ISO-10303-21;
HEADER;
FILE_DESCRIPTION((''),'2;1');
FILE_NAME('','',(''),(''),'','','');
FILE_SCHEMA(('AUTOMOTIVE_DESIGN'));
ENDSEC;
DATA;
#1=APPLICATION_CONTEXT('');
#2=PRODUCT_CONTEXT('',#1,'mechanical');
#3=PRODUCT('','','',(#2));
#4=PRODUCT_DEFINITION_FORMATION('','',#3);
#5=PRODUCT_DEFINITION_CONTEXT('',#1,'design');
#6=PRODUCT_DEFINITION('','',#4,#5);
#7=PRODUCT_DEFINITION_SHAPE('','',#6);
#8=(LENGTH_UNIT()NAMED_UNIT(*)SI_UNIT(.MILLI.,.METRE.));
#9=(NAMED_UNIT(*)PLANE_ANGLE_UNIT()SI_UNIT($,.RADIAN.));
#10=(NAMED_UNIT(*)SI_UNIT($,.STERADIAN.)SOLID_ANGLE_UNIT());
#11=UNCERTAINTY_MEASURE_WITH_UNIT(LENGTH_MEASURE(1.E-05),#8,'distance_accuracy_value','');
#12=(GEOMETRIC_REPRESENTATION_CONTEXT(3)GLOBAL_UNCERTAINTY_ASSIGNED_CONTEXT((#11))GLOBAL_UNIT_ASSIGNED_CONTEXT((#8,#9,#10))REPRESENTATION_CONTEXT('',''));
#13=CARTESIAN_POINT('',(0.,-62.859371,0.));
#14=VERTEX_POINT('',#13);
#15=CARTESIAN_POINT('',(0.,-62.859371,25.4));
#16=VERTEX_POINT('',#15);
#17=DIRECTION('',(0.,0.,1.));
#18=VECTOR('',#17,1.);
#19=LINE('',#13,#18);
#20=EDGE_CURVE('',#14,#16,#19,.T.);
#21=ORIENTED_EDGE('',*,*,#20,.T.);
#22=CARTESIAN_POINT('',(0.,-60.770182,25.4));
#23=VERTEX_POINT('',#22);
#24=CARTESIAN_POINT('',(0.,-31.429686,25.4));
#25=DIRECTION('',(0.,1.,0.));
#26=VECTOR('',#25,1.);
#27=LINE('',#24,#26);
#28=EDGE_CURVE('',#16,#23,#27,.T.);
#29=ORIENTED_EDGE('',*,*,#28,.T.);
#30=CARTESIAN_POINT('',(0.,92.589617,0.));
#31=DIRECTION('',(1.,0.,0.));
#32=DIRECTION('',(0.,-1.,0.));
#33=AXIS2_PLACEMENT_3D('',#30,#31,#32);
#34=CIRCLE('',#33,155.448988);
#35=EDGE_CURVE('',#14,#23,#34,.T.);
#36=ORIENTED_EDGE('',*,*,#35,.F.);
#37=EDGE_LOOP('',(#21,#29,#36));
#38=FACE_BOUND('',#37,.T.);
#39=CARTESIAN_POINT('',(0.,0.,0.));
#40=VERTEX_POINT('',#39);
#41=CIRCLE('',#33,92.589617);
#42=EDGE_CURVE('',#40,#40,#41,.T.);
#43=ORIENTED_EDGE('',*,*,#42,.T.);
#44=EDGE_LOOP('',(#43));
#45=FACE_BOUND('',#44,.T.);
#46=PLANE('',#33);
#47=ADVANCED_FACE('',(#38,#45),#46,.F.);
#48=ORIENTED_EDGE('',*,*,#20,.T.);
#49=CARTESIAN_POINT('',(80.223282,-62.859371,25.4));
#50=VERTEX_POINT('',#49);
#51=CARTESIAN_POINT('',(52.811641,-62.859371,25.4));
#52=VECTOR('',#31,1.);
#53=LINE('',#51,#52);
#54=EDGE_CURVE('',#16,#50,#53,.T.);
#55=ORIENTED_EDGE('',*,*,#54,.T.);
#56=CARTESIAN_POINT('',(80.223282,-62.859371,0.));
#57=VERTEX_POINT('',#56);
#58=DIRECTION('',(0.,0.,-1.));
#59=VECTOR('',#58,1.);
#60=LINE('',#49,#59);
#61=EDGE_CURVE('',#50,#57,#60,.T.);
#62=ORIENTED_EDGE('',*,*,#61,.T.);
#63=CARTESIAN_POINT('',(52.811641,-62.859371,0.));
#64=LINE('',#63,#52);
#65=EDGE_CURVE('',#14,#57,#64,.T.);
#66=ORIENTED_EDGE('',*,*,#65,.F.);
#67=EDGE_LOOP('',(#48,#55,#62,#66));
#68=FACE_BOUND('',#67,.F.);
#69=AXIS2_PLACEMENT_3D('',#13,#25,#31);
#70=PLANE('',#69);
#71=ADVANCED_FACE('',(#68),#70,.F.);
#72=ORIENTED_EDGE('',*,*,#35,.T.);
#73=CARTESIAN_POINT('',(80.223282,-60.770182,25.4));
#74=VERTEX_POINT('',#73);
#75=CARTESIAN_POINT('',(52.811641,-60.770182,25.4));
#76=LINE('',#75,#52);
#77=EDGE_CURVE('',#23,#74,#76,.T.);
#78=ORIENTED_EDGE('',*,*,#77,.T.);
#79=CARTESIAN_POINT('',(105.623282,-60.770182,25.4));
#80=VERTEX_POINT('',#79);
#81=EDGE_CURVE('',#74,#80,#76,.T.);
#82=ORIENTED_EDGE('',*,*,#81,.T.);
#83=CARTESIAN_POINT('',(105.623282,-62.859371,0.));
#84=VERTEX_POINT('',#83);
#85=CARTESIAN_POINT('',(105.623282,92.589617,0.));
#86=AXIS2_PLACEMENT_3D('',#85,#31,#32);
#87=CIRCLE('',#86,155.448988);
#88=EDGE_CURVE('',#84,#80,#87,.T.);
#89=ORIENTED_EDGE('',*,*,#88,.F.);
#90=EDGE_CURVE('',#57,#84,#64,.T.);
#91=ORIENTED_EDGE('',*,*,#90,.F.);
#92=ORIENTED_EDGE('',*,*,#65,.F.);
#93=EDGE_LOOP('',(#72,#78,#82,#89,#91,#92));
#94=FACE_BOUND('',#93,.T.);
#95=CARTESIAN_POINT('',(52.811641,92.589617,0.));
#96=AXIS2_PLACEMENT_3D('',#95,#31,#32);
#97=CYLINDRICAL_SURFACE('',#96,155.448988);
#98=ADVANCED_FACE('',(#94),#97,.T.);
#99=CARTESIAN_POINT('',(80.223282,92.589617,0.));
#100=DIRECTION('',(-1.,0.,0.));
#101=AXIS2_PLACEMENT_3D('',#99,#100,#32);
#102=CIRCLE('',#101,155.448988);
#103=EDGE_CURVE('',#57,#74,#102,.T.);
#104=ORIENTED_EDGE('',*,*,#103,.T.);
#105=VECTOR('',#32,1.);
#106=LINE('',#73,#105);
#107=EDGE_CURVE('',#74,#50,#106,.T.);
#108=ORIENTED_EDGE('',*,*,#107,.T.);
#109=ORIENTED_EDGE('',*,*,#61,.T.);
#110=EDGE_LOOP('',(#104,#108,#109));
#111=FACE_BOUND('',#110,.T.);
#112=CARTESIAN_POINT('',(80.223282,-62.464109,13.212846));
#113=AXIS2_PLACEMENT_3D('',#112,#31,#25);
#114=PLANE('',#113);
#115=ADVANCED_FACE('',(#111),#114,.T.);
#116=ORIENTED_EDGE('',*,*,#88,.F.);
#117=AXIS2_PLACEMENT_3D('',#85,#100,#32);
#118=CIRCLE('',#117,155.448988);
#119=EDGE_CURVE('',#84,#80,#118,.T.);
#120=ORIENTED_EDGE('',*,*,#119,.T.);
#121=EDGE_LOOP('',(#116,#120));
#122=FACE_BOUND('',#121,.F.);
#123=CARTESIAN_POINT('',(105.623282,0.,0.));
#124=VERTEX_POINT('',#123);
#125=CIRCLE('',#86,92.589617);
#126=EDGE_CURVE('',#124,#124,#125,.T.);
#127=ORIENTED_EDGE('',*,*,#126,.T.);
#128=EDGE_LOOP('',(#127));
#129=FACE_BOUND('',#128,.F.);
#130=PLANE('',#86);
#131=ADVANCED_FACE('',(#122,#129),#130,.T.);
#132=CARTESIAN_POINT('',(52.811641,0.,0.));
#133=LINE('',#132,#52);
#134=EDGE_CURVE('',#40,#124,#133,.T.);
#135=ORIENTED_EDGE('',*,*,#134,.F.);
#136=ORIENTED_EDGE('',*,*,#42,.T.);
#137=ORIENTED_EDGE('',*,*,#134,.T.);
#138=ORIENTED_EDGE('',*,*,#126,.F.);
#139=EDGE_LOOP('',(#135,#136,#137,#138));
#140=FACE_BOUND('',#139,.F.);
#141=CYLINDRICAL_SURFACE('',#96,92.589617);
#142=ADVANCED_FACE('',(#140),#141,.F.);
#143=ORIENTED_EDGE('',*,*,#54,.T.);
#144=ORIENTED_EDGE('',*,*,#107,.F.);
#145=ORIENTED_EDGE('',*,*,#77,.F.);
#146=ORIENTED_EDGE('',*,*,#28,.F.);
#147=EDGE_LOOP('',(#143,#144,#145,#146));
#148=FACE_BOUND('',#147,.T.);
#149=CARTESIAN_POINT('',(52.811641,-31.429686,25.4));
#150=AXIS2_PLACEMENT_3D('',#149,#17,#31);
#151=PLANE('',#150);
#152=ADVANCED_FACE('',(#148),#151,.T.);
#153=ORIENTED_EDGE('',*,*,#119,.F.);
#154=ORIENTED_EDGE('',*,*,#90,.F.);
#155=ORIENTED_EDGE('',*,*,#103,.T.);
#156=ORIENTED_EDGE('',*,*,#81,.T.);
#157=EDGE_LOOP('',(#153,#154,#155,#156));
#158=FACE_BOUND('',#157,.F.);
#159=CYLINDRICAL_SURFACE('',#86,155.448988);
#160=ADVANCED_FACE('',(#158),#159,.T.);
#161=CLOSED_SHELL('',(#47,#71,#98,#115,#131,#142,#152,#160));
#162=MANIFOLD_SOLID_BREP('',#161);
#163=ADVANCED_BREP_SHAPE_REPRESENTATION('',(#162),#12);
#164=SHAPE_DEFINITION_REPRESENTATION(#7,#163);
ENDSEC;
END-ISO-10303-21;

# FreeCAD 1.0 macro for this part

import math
import FreeCAD as App
import Part
import Sketcher
Q = App.Units.Quantity

doc = App.newDocument("Part")
body = doc.addObject("PartDesign::Body", "Body")

sketch1 = doc.addObject("Sketcher::SketchObject", "Sketch")
body.addObject(sketch1)
sketch1.AttachmentSupport = (doc.XY_Plane, [""])
sketch1.MapMode = "FlatFace"
sketch1.addGeometry([
    Part.LineSegment(App.Vector(0, 0, 0), App.Vector(0, -63, 0)),
    Part.LineSegment(App.Vector(0, -63, 0), App.Vector(106, -63, 0)),
    Part.LineSegment(App.Vector(106, -63, 0), App.Vector(106, 0, 0)),
    Part.LineSegment(App.Vector(106, 0, 0), App.Vector(0, 0, 0)),
], False)
sketch1.addConstraint([
    Sketcher.Constraint("Coincident", 0, 2, 1, 1),
    Sketcher.Constraint("Coincident", 1, 2, 2, 1),
    Sketcher.Constraint("Coincident", 2, 2, 3, 1),
    Sketcher.Constraint("Coincident", 3, 2, 0, 1),
    Sketcher.Constraint("Vertical", 0),
    Sketcher.Constraint("Horizontal", 1),
    Sketcher.Constraint("Vertical", 2),
    Sketcher.Constraint("Horizontal", 3),
    Sketcher.Constraint("Coincident", 3, 2, -1, 1),
    Sketcher.Constraint("DistanceY", 0, 2, 0, 1, Q("62.859371 mm")),
    Sketcher.Constraint("DistanceX", 1, 1, 1, 2, Q("105.623282 mm")),
])
pad1 = doc.addObject("PartDesign::Pad", "Pad")
body.addObject(pad1)
pad1.Profile = sketch1
pad1.Length = Q("1 in")

sketch2 = doc.addObject("Sketcher::SketchObject", "Sketch001")
body.addObject(sketch2)
sketch2.AttachmentSupport = (doc.XY_Plane, [""])
sketch2.MapMode = "FlatFace"
sketch2.addGeometry([
    Part.LineSegment(App.Vector(0, -63, 0), App.Vector(0, 0, 0)),
    Part.LineSegment(App.Vector(0, 0, 0), App.Vector(106, 0, 0)),
    Part.LineSegment(App.Vector(106, 0, 0), App.Vector(106, -63, 0)),
    Part.LineSegment(App.Vector(106, -63, 0), App.Vector(0, -63, 0)),
], False)
sketch2.addGeometry(Part.LineSegment(App.Vector(0, 93, 0), App.Vector(106, 93, 0)), True)
sketch2.addConstraint([
    Sketcher.Constraint("Coincident", 0, 2, 1, 1),
    Sketcher.Constraint("Coincident", 1, 2, 2, 1),
    Sketcher.Constraint("Coincident", 2, 2, 3, 1),
    Sketcher.Constraint("Coincident", 3, 2, 0, 1),
    Sketcher.Constraint("Vertical", 0),
    Sketcher.Constraint("Horizontal", 1),
    Sketcher.Constraint("Vertical", 2),
    Sketcher.Constraint("Horizontal", 3),
    Sketcher.Constraint("Horizontal", 4),
    Sketcher.Constraint("Coincident", 0, 2, -1, 1),
    Sketcher.Constraint("PointOnObject", 4, 1, -2),
    Sketcher.Constraint("Vertical", 2, 2, 4, 2),
    Sketcher.Constraint("DistanceY", 0, 1, 0, 2, Q("62.859371 mm")),
    Sketcher.Constraint("DistanceX", 1, 1, 1, 2, Q("105.623282 mm")),
    Sketcher.Constraint("DistanceY", 3, 2, 4, 1, Q("155.448988 mm")),
])
revolution = doc.addObject("PartDesign::Revolution", "Revolution")
body.addObject(revolution)
revolution.Profile = sketch2
revolution.ReferenceAxis = (sketch2, ["Axis0"])
revolution.Angle = 360

sketch3 = doc.addObject("Sketcher::SketchObject", "Sketch002")
body.addObject(sketch3)
sketch3.AttachmentSupport = (doc.YZ_Plane, [""])
sketch3.MapMode = "FlatFace"
sketch3.AttachmentOffset = App.Placement(App.Vector(0, 0, 105.623282), App.Rotation())
sketch3.addGeometry([
    Part.ArcOfCircle(Part.Circle(App.Vector(92.6, 0, 0), App.Vector(0, 0, 1), 155.4), math.radians(170.6), math.radians(180)),
    Part.LineSegment(App.Vector(-60.8, 25.4, 0), App.Vector(-62.9, 25.4, 0)),
    Part.LineSegment(App.Vector(-62.9, 25.4, 0), App.Vector(-62.9, 0, 0)),
], False)
sketch3.addConstraint([
    Sketcher.Constraint("Coincident", 0, 1, 1, 1),
    Sketcher.Constraint("Coincident", 1, 2, 2, 1),
    Sketcher.Constraint("Tangent", 2, 2, 0, 2),
    Sketcher.Constraint("Horizontal", 1),
    Sketcher.Constraint("Vertical", 2),
    Sketcher.Constraint("PointOnObject", 0, 3, -1),
    Sketcher.Constraint("DistanceY", 2, 2, 2, 1, Q("1 in")),
    Sketcher.Constraint("Radius", 0, Q("155.448988 mm")),
    Sketcher.Constraint("DistanceX", 1, 2, -1, 1, Q("62.859371 mm")),
])
pocket1 = doc.addObject("PartDesign::Pocket", "Pocket")
body.addObject(pocket1)
pocket1.Profile = sketch3
pocket1.Length = Q("1 in")

doc.recompute()
